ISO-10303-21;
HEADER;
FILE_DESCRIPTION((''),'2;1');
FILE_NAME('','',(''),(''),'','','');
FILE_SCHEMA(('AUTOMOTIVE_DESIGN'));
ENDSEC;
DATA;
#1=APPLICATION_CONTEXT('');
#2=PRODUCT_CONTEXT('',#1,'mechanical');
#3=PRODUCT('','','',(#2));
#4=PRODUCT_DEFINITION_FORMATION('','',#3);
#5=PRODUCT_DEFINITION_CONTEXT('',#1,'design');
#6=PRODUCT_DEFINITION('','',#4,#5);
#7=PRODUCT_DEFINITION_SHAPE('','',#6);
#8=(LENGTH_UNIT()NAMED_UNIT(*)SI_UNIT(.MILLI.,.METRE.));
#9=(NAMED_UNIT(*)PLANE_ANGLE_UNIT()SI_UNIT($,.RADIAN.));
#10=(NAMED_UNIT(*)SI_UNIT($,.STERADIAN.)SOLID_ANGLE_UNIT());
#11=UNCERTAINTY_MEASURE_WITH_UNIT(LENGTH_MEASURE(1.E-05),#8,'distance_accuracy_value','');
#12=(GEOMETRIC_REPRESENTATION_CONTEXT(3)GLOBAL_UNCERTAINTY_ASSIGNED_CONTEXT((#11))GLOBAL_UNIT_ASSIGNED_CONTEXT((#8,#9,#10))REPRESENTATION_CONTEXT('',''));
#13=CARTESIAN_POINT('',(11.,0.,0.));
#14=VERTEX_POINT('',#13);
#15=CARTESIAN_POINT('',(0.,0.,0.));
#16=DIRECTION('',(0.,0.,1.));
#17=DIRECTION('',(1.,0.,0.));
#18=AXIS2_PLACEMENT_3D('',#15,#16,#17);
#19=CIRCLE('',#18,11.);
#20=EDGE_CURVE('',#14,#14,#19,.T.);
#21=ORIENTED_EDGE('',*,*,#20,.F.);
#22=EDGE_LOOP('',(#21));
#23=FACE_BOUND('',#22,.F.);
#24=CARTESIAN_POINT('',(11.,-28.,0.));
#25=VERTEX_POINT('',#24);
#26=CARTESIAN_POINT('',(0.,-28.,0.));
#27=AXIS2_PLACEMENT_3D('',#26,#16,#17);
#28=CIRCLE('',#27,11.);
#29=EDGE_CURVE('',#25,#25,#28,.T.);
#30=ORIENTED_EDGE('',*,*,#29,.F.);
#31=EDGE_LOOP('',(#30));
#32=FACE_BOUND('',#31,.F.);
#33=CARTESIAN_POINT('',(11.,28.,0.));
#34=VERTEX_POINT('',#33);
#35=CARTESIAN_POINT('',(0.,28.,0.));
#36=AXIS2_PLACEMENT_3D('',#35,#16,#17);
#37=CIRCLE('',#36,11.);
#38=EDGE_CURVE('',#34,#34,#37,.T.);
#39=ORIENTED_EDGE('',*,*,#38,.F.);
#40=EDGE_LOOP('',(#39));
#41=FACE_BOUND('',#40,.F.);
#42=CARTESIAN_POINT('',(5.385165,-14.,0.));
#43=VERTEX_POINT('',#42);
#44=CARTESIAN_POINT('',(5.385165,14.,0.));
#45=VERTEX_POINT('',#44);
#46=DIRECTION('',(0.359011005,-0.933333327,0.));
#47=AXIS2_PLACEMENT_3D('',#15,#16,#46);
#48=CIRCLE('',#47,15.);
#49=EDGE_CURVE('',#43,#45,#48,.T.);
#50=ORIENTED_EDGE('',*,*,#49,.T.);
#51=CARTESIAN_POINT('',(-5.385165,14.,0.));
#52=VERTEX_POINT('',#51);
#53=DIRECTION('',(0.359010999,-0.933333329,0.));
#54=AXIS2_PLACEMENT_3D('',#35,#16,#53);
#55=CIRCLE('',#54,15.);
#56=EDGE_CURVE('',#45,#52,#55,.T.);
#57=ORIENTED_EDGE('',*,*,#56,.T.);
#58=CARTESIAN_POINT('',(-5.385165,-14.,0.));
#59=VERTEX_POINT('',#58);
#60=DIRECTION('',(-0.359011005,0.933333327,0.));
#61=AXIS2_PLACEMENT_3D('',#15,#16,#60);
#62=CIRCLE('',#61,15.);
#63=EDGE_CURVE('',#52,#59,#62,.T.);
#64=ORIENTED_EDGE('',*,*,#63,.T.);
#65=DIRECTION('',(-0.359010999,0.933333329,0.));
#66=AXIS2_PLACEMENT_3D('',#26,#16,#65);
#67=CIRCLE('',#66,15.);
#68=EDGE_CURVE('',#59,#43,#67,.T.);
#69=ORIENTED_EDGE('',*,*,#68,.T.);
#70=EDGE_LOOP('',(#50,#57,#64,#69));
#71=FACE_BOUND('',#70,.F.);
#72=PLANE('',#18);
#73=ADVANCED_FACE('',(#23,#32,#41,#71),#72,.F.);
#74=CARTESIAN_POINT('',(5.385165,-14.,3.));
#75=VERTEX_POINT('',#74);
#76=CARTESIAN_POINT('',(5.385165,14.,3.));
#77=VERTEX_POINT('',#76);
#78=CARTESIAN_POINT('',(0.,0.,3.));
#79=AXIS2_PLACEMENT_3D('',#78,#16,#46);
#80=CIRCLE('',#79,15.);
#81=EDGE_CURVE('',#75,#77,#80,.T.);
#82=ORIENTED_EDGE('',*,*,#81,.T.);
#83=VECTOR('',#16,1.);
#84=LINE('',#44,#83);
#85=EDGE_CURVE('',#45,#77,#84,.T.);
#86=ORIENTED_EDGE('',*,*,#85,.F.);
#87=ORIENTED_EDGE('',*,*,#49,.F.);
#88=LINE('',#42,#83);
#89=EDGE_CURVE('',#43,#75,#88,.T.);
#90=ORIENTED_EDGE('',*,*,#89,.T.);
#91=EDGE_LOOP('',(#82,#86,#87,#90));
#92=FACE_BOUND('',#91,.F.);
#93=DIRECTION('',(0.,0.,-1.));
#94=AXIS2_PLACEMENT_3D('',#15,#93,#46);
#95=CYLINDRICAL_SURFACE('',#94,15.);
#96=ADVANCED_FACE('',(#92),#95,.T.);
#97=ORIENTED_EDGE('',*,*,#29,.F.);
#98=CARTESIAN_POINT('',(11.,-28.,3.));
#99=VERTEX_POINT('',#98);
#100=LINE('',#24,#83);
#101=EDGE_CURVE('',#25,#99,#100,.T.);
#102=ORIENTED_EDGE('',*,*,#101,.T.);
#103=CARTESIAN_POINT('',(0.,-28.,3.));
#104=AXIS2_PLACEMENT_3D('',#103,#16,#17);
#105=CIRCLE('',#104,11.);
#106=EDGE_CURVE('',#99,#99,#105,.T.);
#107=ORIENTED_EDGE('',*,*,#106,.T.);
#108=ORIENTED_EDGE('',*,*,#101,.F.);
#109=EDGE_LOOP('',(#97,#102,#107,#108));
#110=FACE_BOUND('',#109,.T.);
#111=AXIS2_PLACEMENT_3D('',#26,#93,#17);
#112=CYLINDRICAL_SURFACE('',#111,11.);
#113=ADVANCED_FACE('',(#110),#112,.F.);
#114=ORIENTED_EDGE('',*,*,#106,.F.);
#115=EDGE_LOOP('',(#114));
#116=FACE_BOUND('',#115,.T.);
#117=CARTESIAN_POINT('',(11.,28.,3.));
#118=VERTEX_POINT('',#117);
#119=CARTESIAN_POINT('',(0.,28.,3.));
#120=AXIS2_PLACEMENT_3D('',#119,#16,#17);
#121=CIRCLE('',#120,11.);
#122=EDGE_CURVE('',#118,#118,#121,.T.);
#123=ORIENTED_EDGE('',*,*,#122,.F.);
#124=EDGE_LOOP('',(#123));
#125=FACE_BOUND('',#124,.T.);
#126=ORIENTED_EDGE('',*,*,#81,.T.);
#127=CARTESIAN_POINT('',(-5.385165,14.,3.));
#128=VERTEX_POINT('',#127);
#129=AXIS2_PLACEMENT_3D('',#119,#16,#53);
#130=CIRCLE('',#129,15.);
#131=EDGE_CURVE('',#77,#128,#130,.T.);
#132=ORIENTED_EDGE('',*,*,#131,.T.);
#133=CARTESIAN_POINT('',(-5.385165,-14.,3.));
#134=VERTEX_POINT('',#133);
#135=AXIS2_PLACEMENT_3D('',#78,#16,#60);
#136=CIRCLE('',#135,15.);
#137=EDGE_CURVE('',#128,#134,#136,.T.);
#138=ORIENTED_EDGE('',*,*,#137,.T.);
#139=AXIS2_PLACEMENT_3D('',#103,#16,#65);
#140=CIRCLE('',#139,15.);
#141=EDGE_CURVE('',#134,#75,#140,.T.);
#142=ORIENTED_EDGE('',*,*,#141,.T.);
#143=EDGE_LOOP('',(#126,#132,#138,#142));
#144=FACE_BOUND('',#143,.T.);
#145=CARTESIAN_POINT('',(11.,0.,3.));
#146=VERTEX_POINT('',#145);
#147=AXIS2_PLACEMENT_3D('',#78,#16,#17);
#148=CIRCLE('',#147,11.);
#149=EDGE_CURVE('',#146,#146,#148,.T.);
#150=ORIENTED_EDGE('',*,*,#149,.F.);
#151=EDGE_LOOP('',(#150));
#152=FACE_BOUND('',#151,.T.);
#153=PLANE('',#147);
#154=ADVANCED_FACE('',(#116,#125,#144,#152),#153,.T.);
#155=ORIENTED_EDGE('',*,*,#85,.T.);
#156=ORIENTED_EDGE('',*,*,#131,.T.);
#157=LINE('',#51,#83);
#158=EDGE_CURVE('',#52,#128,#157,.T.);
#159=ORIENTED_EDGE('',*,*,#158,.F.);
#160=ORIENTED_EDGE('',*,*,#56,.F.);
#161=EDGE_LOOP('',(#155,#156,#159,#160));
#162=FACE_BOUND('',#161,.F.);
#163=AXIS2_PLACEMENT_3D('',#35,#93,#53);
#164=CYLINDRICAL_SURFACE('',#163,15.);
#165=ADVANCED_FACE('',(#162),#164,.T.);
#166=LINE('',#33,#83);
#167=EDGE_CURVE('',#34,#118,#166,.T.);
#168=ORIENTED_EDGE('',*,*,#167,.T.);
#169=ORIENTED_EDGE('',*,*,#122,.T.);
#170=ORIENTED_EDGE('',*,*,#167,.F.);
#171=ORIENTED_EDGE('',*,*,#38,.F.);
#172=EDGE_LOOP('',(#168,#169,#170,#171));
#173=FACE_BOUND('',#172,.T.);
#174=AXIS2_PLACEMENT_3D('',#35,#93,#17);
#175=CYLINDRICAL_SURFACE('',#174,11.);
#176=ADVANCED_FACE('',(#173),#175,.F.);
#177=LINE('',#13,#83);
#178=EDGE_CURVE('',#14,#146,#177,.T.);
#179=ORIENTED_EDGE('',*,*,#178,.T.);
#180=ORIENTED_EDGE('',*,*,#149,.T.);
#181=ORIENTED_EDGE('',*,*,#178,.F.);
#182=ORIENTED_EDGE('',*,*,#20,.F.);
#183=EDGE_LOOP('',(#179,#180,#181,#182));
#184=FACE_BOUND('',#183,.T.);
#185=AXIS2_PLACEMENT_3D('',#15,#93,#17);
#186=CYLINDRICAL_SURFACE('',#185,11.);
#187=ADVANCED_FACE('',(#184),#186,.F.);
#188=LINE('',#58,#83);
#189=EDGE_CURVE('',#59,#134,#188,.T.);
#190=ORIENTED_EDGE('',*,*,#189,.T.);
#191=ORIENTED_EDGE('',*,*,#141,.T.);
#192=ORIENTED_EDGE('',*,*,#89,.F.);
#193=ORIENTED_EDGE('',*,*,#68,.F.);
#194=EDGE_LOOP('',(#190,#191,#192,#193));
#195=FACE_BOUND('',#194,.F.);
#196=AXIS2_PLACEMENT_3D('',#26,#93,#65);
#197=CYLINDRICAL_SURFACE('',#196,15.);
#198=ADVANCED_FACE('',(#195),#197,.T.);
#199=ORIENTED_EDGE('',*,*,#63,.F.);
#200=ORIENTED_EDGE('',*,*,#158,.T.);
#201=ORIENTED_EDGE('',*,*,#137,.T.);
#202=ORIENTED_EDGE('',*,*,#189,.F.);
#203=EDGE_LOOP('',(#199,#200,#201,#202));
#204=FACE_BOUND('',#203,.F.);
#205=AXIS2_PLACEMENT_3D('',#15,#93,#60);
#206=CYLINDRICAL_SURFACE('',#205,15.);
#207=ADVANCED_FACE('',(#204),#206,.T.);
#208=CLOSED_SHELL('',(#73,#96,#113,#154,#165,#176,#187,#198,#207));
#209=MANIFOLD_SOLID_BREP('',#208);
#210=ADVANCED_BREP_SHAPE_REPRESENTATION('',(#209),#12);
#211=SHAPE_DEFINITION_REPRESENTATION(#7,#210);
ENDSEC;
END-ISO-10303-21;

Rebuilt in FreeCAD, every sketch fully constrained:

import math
import FreeCAD as App
import Part
import Sketcher

V = App.Vector

doc = App.newDocument("Part")
body = doc.addObject("PartDesign::Body", "Body")

sketch1 = body.newObject("Sketcher::SketchObject", "Sketch")
sketch1.AttachmentSupport = (doc.getObject("XY_Plane"), [""])
sketch1.MapMode = "FlatFace"
sketch1.addGeometry(Part.ArcOfCircle(Part.Circle(V(0, 28, 0), V(0, 0, 1), 15), math.radians(-69), math.radians(249)), False)
sketch1.addGeometry(Part.ArcOfCircle(Part.Circle(V(0, 0, 0), V(0, 0, 1), 15), math.radians(111), math.radians(249)), False)
sketch1.addGeometry(Part.ArcOfCircle(Part.Circle(V(0, -28, 0), V(0, 0, 1), 15), math.radians(111), math.radians(429)), False)
sketch1.addGeometry(Part.ArcOfCircle(Part.Circle(V(0, 0, 0), V(0, 0, 1), 15), math.radians(-69), math.radians(69)), False)
sketch1.addGeometry(Part.Circle(V(0, -28, 0), V(0, 0, 1), 11), False)
sketch1.addGeometry(Part.Circle(V(0, 0, 0), V(0, 0, 1), 11), False)
sketch1.addGeometry(Part.Circle(V(0, 28, 0), V(0, 0, 1), 11), False)
sketch1.addConstraint(Sketcher.Constraint("Coincident", 0, 2, 1, 1))
sketch1.addConstraint(Sketcher.Constraint("Coincident", 1, 2, 2, 1))
sketch1.addConstraint(Sketcher.Constraint("Coincident", 2, 2, 3, 1))
sketch1.addConstraint(Sketcher.Constraint("Coincident", 3, 2, 0, 1))
sketch1.addConstraint(Sketcher.Constraint("Coincident", 1, 3, -1, 1))
sketch1.addConstraint(Sketcher.Constraint("Coincident", 3, 3, -1, 1))
sketch1.addConstraint(Sketcher.Constraint("Coincident", 5, 3, -1, 1))
sketch1.addConstraint(Sketcher.Constraint("Coincident", 4, 3, 2, 3))
sketch1.addConstraint(Sketcher.Constraint("Coincident", 6, 3, 0, 3))
sketch1.addConstraint(Sketcher.Constraint("Equal", 0, 1))
sketch1.addConstraint(Sketcher.Constraint("Equal", 1, 2))
sketch1.addConstraint(Sketcher.Constraint("Equal", 2, 3))
sketch1.addConstraint(Sketcher.Constraint("Equal", 4, 5))
sketch1.addConstraint(Sketcher.Constraint("Equal", 5, 6))
sketch1.addConstraint(Sketcher.Constraint("Symmetric", 0, 3, 2, 3, -1, 1))
sketch1.addConstraint(Sketcher.Constraint("PointOnObject", 0, 3, -2))
sketch1.addConstraint(Sketcher.Constraint("Diameter", 4, 22.0))
sketch1.addConstraint(Sketcher.Constraint("Radius", 0, 15.0))
sketch1.addConstraint(Sketcher.Constraint("DistanceY", -1, 1, 0, 3, 28.0))
pad1 = body.newObject("PartDesign::Pad", "Pad")
pad1.Profile = sketch1
pad1.Length = 3

doc.recompute()
